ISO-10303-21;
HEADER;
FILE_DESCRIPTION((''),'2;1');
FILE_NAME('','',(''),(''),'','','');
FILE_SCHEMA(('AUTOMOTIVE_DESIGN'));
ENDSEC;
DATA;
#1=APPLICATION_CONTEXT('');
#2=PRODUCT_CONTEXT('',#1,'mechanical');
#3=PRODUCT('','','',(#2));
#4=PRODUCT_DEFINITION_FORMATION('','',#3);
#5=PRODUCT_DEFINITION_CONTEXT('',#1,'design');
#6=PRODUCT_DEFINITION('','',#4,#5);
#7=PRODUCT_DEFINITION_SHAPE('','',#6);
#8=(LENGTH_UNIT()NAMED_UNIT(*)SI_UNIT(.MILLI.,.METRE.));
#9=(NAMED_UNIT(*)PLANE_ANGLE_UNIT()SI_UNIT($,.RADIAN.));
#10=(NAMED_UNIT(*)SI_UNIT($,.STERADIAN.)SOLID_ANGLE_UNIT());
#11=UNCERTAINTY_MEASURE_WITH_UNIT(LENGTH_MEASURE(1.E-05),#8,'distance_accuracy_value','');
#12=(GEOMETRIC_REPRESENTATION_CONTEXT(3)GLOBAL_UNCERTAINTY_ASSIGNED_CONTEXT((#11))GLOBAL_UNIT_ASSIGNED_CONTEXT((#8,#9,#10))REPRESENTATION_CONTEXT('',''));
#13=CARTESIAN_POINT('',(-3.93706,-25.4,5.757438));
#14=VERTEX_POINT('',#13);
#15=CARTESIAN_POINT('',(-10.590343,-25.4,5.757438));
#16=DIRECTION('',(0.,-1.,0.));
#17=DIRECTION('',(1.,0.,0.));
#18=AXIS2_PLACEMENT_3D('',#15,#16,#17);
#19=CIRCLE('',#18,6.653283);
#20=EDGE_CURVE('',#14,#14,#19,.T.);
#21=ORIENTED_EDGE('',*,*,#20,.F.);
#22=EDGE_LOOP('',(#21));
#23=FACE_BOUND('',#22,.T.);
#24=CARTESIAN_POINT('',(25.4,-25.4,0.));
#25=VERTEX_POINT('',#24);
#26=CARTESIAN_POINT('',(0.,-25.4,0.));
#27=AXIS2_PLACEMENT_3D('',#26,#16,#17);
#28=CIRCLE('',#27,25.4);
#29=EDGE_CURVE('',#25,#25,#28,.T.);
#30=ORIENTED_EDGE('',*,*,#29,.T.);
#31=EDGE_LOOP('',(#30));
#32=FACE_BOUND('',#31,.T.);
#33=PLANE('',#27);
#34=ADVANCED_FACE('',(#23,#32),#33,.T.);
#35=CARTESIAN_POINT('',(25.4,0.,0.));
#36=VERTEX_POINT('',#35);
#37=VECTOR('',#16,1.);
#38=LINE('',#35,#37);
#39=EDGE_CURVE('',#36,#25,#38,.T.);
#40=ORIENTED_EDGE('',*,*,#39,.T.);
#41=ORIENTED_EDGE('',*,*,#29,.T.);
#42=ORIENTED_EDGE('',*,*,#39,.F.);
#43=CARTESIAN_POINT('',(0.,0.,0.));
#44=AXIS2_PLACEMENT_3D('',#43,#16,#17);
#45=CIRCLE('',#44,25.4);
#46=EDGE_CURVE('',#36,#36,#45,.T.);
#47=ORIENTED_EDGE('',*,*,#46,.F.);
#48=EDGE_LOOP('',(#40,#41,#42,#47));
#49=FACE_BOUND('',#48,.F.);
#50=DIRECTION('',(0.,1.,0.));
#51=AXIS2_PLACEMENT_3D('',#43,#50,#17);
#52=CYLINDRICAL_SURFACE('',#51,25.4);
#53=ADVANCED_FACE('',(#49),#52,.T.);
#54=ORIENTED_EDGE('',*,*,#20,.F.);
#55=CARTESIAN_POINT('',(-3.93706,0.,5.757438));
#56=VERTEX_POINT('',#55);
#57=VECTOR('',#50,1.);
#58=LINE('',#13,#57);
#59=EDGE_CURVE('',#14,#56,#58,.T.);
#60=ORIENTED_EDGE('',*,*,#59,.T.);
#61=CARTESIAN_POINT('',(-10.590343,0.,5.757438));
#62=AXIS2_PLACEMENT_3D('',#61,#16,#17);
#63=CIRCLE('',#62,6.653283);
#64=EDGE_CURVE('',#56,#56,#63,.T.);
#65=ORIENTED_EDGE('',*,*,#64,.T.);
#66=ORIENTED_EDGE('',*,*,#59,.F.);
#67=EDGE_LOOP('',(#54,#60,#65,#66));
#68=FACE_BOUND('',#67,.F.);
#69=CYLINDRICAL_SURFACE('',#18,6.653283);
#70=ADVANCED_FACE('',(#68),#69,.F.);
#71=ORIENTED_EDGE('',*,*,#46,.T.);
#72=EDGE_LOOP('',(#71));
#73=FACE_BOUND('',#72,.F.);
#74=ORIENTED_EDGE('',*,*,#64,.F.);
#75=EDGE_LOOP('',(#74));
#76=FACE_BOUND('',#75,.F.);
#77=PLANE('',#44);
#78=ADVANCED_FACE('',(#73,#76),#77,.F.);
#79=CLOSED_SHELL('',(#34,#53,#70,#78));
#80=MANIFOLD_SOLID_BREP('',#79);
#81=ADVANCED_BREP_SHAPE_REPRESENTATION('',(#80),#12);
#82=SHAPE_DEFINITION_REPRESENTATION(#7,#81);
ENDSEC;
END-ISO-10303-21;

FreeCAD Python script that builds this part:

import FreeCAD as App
import Part
import Sketcher
Q = App.Units.Quantity

doc = App.newDocument("Part")
params = doc.addObject("Spreadsheet::Sheet", "Params")
for row, (alias, value) in enumerate([
    ("sketch1_diameter", "2 in"),
    ("pad1_length", "1 in"),
], start=1):
    params.set(f"A{row}", alias)
    params.set(f"B{row}", "=" + value)
    params.setAlias(f"B{row}", alias)

body = doc.addObject("PartDesign::Body", "Body")

sketch1 = body.newObject("Sketcher::SketchObject", "Sketch")
sketch1.AttachmentSupport = (doc.getObject("XZ_Plane"), [""])
sketch1.MapMode = "FlatFace"
sketch1.addGeometry(Part.Circle(App.Vector(0, 0, 0), App.Vector(0, 0, 1), 25), False)
sketch1.addConstraint([
    Sketcher.Constraint("Coincident", 0, 3, -1, 1),
    Sketcher.Constraint("Diameter", 0, Q("2 in")),
])
sketch1.setExpression("Constraints[1]", "Params.sketch1_diameter")
pad1 = body.newObject("PartDesign::Pad", "Pad")
pad1.Profile = sketch1
pad1.setExpression("Length", "Params.pad1_length")

sketch2 = body.newObject("Sketcher::SketchObject", "Sketch001")
sketch2.AttachmentSupport = (doc.getObject("XZ_Plane"), [""])
sketch2.MapMode = "FlatFace"
sketch2.AttachmentOffset = App.Placement(App.Vector(0, 0, 1 * 25.4), App.Rotation())
sketch2.addGeometry(Part.Circle(App.Vector(-11, 6, 0), App.Vector(0, 0, 1), 7), False)
sketch2.addConstraint([
    Sketcher.Constraint("Diameter", 0, Q("13.306566 mm")),
    Sketcher.Constraint("DistanceX", 0, 3, -1, 1, Q("10.590343 mm")),
    Sketcher.Constraint("DistanceY", -1, 1, 0, 3, Q("5.757438 mm")),
])
pocket1 = body.newObject("PartDesign::Pocket", "Pocket")
pocket1.Profile = sketch2
pocket1.Type = "ThroughAll"

doc.recompute()
